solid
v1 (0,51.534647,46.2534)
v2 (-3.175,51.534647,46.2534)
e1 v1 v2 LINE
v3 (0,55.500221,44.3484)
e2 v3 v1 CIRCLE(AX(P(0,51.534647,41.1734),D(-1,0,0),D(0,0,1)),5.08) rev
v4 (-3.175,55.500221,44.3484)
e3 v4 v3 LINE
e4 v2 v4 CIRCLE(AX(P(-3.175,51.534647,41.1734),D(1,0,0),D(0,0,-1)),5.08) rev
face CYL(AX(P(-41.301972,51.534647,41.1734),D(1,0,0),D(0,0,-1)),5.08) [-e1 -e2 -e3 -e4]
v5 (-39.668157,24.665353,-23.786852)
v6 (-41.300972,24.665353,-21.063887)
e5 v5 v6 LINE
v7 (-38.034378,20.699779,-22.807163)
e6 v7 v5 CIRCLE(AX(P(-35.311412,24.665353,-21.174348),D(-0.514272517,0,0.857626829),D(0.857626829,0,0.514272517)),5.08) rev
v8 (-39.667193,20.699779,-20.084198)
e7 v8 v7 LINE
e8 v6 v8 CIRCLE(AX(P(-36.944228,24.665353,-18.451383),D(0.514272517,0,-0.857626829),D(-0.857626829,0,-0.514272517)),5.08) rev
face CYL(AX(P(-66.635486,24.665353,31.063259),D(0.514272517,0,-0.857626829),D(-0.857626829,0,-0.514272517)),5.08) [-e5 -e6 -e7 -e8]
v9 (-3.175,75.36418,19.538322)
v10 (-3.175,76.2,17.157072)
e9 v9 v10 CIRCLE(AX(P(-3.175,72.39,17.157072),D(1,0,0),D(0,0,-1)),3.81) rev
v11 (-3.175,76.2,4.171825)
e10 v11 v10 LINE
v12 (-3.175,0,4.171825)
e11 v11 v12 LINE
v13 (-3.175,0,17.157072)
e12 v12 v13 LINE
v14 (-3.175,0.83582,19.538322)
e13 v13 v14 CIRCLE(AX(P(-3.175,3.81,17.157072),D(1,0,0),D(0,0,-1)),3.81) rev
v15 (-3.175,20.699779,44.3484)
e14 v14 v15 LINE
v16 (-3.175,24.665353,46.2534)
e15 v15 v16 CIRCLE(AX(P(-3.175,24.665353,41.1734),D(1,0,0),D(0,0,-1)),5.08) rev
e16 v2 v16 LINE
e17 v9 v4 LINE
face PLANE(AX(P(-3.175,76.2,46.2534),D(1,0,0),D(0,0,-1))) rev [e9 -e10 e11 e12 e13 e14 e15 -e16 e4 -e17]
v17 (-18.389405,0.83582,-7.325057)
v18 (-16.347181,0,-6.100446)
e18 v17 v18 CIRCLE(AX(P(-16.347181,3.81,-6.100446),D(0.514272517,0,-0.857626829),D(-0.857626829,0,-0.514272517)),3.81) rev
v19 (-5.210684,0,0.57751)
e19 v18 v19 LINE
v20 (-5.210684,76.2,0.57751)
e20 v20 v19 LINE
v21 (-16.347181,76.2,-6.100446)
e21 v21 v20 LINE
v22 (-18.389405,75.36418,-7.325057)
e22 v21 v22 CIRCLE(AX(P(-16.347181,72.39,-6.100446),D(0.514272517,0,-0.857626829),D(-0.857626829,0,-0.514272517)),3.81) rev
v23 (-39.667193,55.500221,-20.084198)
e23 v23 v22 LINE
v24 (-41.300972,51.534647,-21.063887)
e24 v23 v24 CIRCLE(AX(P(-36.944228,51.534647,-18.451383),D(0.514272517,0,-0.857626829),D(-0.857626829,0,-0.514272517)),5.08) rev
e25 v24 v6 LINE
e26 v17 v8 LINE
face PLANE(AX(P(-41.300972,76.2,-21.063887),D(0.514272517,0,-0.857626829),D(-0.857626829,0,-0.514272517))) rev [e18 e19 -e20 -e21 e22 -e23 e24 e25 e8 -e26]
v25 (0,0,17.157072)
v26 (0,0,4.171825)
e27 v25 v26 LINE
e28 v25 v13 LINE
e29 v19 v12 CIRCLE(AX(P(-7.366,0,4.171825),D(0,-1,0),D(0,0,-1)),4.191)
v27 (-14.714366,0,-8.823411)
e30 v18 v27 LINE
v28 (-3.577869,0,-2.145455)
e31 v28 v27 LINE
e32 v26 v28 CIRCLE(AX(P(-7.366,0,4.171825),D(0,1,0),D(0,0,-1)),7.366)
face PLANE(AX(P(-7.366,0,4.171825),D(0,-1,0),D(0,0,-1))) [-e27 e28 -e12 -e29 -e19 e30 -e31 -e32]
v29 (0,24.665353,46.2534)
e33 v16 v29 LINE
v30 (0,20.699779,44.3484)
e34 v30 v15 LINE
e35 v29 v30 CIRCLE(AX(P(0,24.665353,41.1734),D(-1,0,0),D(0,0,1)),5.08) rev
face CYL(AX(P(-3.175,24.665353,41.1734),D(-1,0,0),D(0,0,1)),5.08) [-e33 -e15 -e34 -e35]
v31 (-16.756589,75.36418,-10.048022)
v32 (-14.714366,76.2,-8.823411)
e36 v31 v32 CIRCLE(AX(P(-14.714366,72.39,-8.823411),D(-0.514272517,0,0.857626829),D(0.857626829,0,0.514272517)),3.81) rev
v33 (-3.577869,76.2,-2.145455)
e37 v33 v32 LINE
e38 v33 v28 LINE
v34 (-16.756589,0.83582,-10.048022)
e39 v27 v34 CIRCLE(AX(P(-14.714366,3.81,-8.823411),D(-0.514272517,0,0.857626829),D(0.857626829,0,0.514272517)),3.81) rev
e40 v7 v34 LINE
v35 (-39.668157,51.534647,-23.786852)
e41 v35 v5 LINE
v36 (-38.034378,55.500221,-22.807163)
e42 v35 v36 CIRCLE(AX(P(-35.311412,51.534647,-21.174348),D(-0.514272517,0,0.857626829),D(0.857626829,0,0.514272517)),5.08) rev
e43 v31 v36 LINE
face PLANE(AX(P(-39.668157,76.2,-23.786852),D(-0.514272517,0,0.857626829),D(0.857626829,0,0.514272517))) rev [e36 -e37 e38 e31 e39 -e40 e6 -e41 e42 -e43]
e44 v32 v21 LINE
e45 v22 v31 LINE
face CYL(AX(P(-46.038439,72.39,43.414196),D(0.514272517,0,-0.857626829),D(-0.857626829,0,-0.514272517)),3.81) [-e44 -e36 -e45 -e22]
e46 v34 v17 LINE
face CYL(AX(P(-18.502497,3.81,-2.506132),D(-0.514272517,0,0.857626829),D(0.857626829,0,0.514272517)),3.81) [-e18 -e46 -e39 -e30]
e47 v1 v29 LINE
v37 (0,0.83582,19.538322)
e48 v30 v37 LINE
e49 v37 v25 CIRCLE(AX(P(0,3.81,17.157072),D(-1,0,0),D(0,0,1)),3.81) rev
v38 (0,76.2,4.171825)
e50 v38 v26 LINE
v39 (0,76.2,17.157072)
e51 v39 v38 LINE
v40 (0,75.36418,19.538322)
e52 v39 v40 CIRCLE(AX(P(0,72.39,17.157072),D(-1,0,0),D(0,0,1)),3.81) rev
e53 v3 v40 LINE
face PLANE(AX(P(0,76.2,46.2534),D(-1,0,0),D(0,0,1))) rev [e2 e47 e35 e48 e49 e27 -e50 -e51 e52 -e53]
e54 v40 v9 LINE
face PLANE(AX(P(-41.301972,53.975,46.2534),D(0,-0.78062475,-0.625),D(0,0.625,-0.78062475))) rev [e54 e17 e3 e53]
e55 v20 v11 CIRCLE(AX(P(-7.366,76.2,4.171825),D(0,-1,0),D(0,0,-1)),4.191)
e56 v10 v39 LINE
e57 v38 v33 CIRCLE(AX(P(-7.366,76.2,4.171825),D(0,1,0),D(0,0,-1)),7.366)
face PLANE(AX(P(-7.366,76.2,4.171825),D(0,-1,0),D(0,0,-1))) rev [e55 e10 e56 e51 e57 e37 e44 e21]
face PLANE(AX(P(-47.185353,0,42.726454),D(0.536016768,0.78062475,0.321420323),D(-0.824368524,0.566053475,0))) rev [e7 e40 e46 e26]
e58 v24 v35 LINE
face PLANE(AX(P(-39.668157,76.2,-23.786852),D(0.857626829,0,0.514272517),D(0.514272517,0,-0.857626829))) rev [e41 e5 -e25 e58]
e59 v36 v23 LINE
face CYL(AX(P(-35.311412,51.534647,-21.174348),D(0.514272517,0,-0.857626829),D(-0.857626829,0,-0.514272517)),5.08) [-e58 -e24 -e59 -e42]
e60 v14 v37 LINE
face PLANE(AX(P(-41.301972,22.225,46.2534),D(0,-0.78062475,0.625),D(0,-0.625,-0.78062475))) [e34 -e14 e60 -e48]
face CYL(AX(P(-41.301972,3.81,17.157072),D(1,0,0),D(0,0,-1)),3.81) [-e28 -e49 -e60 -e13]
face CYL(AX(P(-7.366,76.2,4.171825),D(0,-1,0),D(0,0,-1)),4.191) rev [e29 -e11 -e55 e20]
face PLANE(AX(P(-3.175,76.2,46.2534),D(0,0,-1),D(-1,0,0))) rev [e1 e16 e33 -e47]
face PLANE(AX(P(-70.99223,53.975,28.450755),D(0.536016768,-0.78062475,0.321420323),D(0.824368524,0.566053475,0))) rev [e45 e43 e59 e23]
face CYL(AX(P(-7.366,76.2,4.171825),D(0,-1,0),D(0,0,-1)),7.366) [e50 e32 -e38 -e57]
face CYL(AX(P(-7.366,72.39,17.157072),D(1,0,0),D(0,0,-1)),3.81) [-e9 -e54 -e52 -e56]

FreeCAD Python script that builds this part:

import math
import FreeCAD as App
import Part
import Sketcher
Q = App.Units.Quantity


def edges_at(feature, points):
    """Names of the edges that pass closest to the given points."""
    edges = feature.Shape.Edges
    near = lambda p: min(range(len(edges)), key=lambda i: edges[i].distToShape(Part.Vertex(*p))[0])
    return sorted({f"Edge{near(p) + 1}" for p in points})

doc = App.newDocument("Part")
body = doc.addObject("PartDesign::Body", "Body")

# Sketch on XZ plane
sketch1 = doc.addObject("Sketcher::SketchObject", "Sketch")
body.addObject(sketch1)
sketch1.AttachmentSupport = (doc.XZ_Plane, [""])
sketch1.MapMode = "FlatFace"
sketch1.addGeometry(Part.LineSegment(App.Vector(-3.577869, -2.145455, 0), App.Vector(-39.668157, -23.786852, 0)), False)
sketch1.addGeometry(Part.LineSegment(App.Vector(-39.668157, -23.786852, 0), App.Vector(-41.300972, -21.063887, 0)), False)
sketch1.addGeometry(Part.LineSegment(App.Vector(-41.300972, -21.063887, 0), App.Vector(-5.210684, 0.57751, 0)), False)
sketch1.addGeometry(Part.ArcOfCircle(Part.Circle(App.Vector(-7.366, 4.171825, 0), App.Vector(0, 0, 1), 4.191), math.radians(-59.051159), math.radians(0)), False)
sketch1.addGeometry(Part.LineSegment(App.Vector(-3.175, 4.171825, 0), App.Vector(-3.175, 46.2534, 0)), False)
sketch1.addGeometry(Part.LineSegment(App.Vector(-3.175, 46.2534, 0), App.Vector(0, 46.2534, 0)), False)
sketch1.addGeometry(Part.LineSegment(App.Vector(0, 46.2534, 0), App.Vector(0, 4.171825, 0)), False)
sketch1.addGeometry(Part.ArcOfCircle(Part.Circle(App.Vector(-7.366, 4.171825, 0), App.Vector(0, 0, 1), 7.366), math.radians(-59.051159), math.radians(0)), False)
sketch1.addConstraint(Sketcher.Constraint("Coincident", 0, 2, 1, 1))
sketch1.addConstraint(Sketcher.Constraint("Coincident", 1, 2, 2, 1))
sketch1.addConstraint(Sketcher.Constraint("Coincident", 2, 2, 3, 1))
sketch1.addConstraint(Sketcher.Constraint("Coincident", 3, 2, 4, 1))
sketch1.addConstraint(Sketcher.Constraint("Coincident", 4, 2, 5, 1))
sketch1.addConstraint(Sketcher.Constraint("Coincident", 5, 2, 6, 1))
sketch1.addConstraint(Sketcher.Constraint("Coincident", 6, 2, 7, 2))
sketch1.addConstraint(Sketcher.Constraint("Coincident", 7, 1, 0, 1))
sketch1.addConstraint(Sketcher.Constraint("Vertical", 4))
sketch1.addConstraint(Sketcher.Constraint("Horizontal", 5))
sketch1.addConstraint(Sketcher.Constraint("Vertical", 6))
sketch1.addConstraint(Sketcher.Constraint("Coincident", 7, 3, 3, 3))
sketch1.addConstraint(Sketcher.Constraint("PointOnObject", 5, 2, -2))
sketch1.addConstraint(Sketcher.Constraint("Radius", 7, Q("0.29 in")))
sketch1.addConstraint(Sketcher.Constraint("Radius", 3, Q("0.165 in")))
sketch1.addConstraint(Sketcher.Constraint("Distance", 1, Q("0.125 in")))
sketch1.addConstraint(Sketcher.Constraint("DistanceY", -1, 1, 4, 2, Q("1.821 in")))
sketch1.addConstraint(Sketcher.Constraint("DistanceY", 4, 1, 4, 2, 42.081575))
sketch1.addConstraint(Sketcher.Constraint("DistanceY", 6, 2, 6, 1, 42.081575))
sketch1.addConstraint(Sketcher.Constraint("DistanceY", -1, 1, 2, 2, 0.57751))
sketch1.addConstraint(Sketcher.Constraint("DistanceX", 7, 1, -1, 1, 3.577869))
sketch1.addConstraint(Sketcher.Constraint("DistanceY", 1, 2, 7, 3, 25.235712))
sketch1.addConstraint(Sketcher.Constraint("DistanceX", 1, 2, 2, 2, 36.090288))
sketch1.addConstraint(Sketcher.Constraint("DistanceY", 1, 2, 3, 2, 25.235712))
sketch1.addConstraint(Sketcher.Constraint("Distance", 0, 42.081575))
pad1 = doc.addObject("PartDesign::Pad", "Pad")
body.addObject(pad1)
pad1.Profile = sketch1
pad1.Length = Q("3 in")
pad1.Reversed = True

# Sketch on YZ plane
sketch2 = doc.addObject("Sketcher::SketchObject", "Sketch001")
body.addObject(sketch2)
sketch2.AttachmentSupport = (doc.YZ_Plane, [""])
sketch2.MapMode = "FlatFace"
sketch2.addGeometry(Part.LineSegment(App.Vector(54, 46, 0), App.Vector(76, 18, 0)), False)
sketch2.addGeometry(Part.LineSegment(App.Vector(76, 18, 0), App.Vector(76, 46, 0)), False)
sketch2.addGeometry(Part.LineSegment(App.Vector(76, 46, 0), App.Vector(54, 46, 0)), False)
sketch2.addConstraint(Sketcher.Constraint("Coincident", 0, 2, 1, 1))
sketch2.addConstraint(Sketcher.Constraint("Coincident", 1, 2, 2, 1))
sketch2.addConstraint(Sketcher.Constraint("Coincident", 2, 2, 0, 1))
sketch2.addConstraint(Sketcher.Constraint("Vertical", 1))
sketch2.addConstraint(Sketcher.Constraint("Horizontal", 2))
sketch2.addConstraint(Sketcher.Constraint("DistanceX", -1, 1, 0, 2, Q("3 in")))
sketch2.addConstraint(Sketcher.Constraint("Distance", 0, Q("1.4 in")))
sketch2.addConstraint(Sketcher.Constraint("DistanceX", 2, 2, 2, 1, Q("0.875 in")))
sketch2.addConstraint(Sketcher.Constraint("DistanceY", -1, 1, 1, 2, Q("1.821 in")))
pocket1 = doc.addObject("PartDesign::Pocket", "Pocket")
body.addObject(pocket1)
pocket1.Profile = sketch2
pocket1.Type = "UpToFirst"

# Sketch on YZ plane
sketch3 = doc.addObject("Sketcher::SketchObject", "Sketch002")
body.addObject(sketch3)
sketch3.AttachmentSupport = (doc.YZ_Plane, [""])
sketch3.MapMode = "FlatFace"
sketch3.addGeometry(Part.LineSegment(App.Vector(22, 46, 0), App.Vector(0, 46, 0)), False)
sketch3.addGeometry(Part.LineSegment(App.Vector(0, 46, 0), App.Vector(0, 18, 0)), False)
sketch3.addGeometry(Part.LineSegment(App.Vector(0, 18, 0), App.Vector(22, 46, 0)), False)
sketch3.addConstraint(Sketcher.Constraint("Coincident", 0, 2, 1, 1))
sketch3.addConstraint(Sketcher.Constraint("Coincident", 1, 2, 2, 1))
sketch3.addConstraint(Sketcher.Constraint("Coincident", 2, 2, 0, 1))
sketch3.addConstraint(Sketcher.Constraint("Horizontal", 0))
sketch3.addConstraint(Sketcher.Constraint("Vertical", 1))
sketch3.addConstraint(Sketcher.Constraint("PointOnObject", 0, 2, -2))
sketch3.addConstraint(Sketcher.Constraint("Distance", 2, Q("1.4 in")))
sketch3.addConstraint(Sketcher.Constraint("DistanceX", 0, 2, 0, 1, Q("0.875 in")))
sketch3.addConstraint(Sketcher.Constraint("DistanceY", -1, 1, 0, 2, Q("1.821 in")))
pocket2 = doc.addObject("PartDesign::Pocket", "Pocket001")
body.addObject(pocket2)
pocket2.Profile = sketch3
pocket2.Type = "UpToFirst"

# Sketch on an angled plane
sketch4 = doc.addObject("Sketcher::SketchObject", "Sketch003")
body.addObject(sketch4)
sketch4.Placement = App.Placement(App.Vector(0, 0, 0), App.Rotation(App.Vector(-0.857626829, 0, -0.514272517), App.Vector(0, 1, 0), App.Vector(0.514272517, 0, -0.857626829), "ZXY"))
sketch4.addGeometry(Part.LineSegment(App.Vector(18, 76, 0), App.Vector(46, 54, 0)), False)
sketch4.addGeometry(Part.LineSegment(App.Vector(46, 54, 0), App.Vector(46, 76, 0)), False)
sketch4.addGeometry(Part.LineSegment(App.Vector(46, 76, 0), App.Vector(18, 76, 0)), False)
sketch4.addConstraint(Sketcher.Constraint("Coincident", 0, 2, 1, 1))
sketch4.addConstraint(Sketcher.Constraint("Coincident", 1, 2, 2, 1))
sketch4.addConstraint(Sketcher.Constraint("Coincident", 2, 2, 0, 1))
sketch4.addConstraint(Sketcher.Constraint("Vertical", 1))
sketch4.addConstraint(Sketcher.Constraint("Horizontal", 2))
sketch4.addConstraint(Sketcher.Constraint("DistanceY", -1, 1, 1, 2, Q("3 in")))
sketch4.addConstraint(Sketcher.Constraint("Distance", 0, Q("1.4 in")))
sketch4.addConstraint(Sketcher.Constraint("DistanceY", 1, 1, 1, 2, Q("0.875 in")))
sketch4.addConstraint(Sketcher.Constraint("DistanceX", -1, 1, 0, 2, Q("1.821 in")))
pocket3 = doc.addObject("PartDesign::Pocket", "Pocket002")
body.addObject(pocket3)
pocket3.Profile = sketch4
pocket3.Type = "UpToFirst"

# Sketch on an angled plane
sketch5 = doc.addObject("Sketcher::SketchObject", "Sketch004")
body.addObject(sketch5)
sketch5.Placement = App.Placement(App.Vector(0, 0, 0), App.Rotation(App.Vector(-0.857626829, 0, -0.514272517), App.Vector(0, 1, 0), App.Vector(0.514272517, 0, -0.857626829), "ZXY"))
sketch5.addGeometry(Part.LineSegment(App.Vector(46, 22, 0), App.Vector(18, 0, 0)), False)
sketch5.addGeometry(Part.LineSegment(App.Vector(18, 0, 0), App.Vector(46, 0, 0)), False)
sketch5.addGeometry(Part.LineSegment(App.Vector(46, 0, 0), App.Vector(46, 22, 0)), False)
sketch5.addConstraint(Sketcher.Constraint("Coincident", 0, 2, 1, 1))
sketch5.addConstraint(Sketcher.Constraint("Coincident", 1, 2, 2, 1))
sketch5.addConstraint(Sketcher.Constraint("Coincident", 2, 2, 0, 1))
sketch5.addConstraint(Sketcher.Constraint("Horizontal", 1))
sketch5.addConstraint(Sketcher.Constraint("Vertical", 2))
sketch5.addConstraint(Sketcher.Constraint("PointOnObject", 0, 2, -1))
sketch5.addConstraint(Sketcher.Constraint("Distance", 0, Q("1.4 in")))
sketch5.addConstraint(Sketcher.Constraint("DistanceY", 2, 1, 2, 2, Q("0.875 in")))
sketch5.addConstraint(Sketcher.Constraint("DistanceX", -1, 1, 1, 2, Q("1.821 in")))
pocket4 = doc.addObject("PartDesign::Pocket", "Pocket003")
body.addObject(pocket4)
pocket4.Profile = sketch5
pocket4.Type = "UpToFirst"
doc.recompute()

fillet = doc.addObject("PartDesign::Fillet", "Fillet")
body.addObject(fillet)
fillet.Base = (pocket4, edges_at(pocket4, [
    (-1.587, 22.225, 46.253),
    (-1.587, 53.975, 46.253),
    (-40.485, 22.225, -22.425),
    (-40.485, 53.975, -22.425),
]))
fillet.Radius = Q("0.2 in")
doc.recompute()

fillet2 = doc.addObject("PartDesign::Fillet", "Fillet001")
body.addObject(fillet2)
fillet2.Base = (fillet, edges_at(fillet, [
    (-1.587, 0, 18.494),
    (-1.587, 76.2, 18.494),
    (-16.678, 0, -8.15),
    (-16.678, 76.2, -8.15),
]))
fillet2.Radius = Q("0.15 in")

doc.recompute()
